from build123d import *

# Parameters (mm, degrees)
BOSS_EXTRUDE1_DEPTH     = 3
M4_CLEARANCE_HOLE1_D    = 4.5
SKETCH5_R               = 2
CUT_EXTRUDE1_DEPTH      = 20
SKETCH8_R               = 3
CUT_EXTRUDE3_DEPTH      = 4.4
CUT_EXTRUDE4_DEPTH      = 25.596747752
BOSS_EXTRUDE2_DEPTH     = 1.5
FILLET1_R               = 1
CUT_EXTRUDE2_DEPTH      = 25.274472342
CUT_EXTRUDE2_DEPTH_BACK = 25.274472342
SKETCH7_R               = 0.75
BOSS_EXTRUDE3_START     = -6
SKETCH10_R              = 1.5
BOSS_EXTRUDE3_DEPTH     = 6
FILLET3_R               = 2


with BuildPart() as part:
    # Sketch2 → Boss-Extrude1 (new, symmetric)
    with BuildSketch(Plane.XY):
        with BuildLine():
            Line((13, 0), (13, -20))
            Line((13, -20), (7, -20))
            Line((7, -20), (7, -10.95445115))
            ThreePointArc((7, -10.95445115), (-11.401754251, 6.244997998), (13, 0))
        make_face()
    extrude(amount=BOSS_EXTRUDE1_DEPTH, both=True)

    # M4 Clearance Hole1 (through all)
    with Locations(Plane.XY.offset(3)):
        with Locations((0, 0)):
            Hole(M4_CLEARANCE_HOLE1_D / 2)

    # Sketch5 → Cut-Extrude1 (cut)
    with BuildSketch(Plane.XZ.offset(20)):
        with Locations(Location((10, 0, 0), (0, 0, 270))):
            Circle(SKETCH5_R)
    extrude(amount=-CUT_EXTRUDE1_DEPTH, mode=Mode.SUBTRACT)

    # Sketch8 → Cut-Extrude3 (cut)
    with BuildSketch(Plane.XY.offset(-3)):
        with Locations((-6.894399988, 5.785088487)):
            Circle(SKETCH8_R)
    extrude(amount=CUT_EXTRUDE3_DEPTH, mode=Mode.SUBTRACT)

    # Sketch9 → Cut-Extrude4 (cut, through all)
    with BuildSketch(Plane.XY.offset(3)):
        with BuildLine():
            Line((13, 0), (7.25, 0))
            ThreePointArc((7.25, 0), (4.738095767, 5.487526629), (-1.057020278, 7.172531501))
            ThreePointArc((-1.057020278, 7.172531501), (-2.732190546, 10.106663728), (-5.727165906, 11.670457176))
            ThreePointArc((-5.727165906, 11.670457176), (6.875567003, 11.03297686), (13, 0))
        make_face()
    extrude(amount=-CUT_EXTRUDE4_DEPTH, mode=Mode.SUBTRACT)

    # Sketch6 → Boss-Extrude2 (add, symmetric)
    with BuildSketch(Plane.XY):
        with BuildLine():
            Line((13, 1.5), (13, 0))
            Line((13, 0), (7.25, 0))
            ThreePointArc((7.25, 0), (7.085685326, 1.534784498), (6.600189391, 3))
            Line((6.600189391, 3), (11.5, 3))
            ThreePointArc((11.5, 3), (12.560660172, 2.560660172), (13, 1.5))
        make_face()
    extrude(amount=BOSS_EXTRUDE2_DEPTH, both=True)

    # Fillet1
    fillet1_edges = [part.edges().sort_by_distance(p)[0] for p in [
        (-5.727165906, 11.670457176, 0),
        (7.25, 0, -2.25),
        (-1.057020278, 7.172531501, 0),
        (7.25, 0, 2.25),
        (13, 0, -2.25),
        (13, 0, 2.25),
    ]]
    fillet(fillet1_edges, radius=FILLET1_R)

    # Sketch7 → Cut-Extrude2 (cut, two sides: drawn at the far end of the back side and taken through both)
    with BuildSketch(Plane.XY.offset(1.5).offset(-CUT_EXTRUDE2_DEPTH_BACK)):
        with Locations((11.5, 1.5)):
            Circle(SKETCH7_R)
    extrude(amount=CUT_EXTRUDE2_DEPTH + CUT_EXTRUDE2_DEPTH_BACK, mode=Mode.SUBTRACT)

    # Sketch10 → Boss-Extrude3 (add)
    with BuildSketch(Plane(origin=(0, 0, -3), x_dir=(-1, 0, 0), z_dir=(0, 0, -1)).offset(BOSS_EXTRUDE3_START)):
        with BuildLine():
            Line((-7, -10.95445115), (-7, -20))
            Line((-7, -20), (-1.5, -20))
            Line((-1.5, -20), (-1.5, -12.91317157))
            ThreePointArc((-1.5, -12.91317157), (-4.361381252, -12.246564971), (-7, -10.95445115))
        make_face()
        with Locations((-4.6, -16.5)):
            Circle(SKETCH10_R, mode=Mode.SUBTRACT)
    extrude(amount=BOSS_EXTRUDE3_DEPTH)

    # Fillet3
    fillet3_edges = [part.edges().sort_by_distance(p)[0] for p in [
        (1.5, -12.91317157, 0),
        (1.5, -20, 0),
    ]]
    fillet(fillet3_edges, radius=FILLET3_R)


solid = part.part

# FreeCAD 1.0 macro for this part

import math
import FreeCAD as App
import Part
import Sketcher
Q = App.Units.Quantity


def edges_at(feature, points):
    """Names of the edges that pass closest to the given points."""
    edges = feature.Shape.Edges
    near = lambda p: min(range(len(edges)), key=lambda i: edges[i].distToShape(Part.Vertex(*p))[0])
    return sorted({f"Edge{near(p) + 1}" for p in points})

doc = App.newDocument("Part")
body = doc.addObject("PartDesign::Body", "Body")

# Sketch on XY plane
sketch1 = body.newObject("Sketcher::SketchObject", "Sketch")
sketch1.AttachmentSupport = (doc.getObject("XY_Plane"), [""])
sketch1.MapMode = "FlatFace"
sketch1.addGeometry([
    Part.LineSegment(App.Vector(13, -20, 0), App.Vector(13, 0, 0)),
    Part.ArcOfCircle(Part.Circle(App.Vector(0, 0, 0), App.Vector(0, 0, 1), 13), math.radians(0), math.radians(303)),
    Part.LineSegment(App.Vector(7, -11, 0), App.Vector(7, -20, 0)),
    Part.LineSegment(App.Vector(7, -20, 0), App.Vector(13, -20, 0)),
], False)
sketch1.addConstraint([
    Sketcher.Constraint("Tangent", 0, 2, 1, 1),
    Sketcher.Constraint("Coincident", 1, 2, 2, 1),
    Sketcher.Constraint("Coincident", 2, 2, 3, 1),
    Sketcher.Constraint("Coincident", 3, 2, 0, 1),
    Sketcher.Constraint("Vertical", 0),
    Sketcher.Constraint("Vertical", 2),
    Sketcher.Constraint("Horizontal", 3),
    Sketcher.Constraint("Coincident", 1, 3, -1, 1),
    Sketcher.Constraint("Radius", 1, Q("13 mm")),
    Sketcher.Constraint("DistanceX", 3, 1, 3, 2, Q("6 mm")),
    Sketcher.Constraint("DistanceY", 0, 1, 0, 2, Q("20 mm")),
])
pad1 = body.newObject("PartDesign::Pad", "Pad")
pad1.Profile = sketch1
pad1.Length = 6
pad1.Midplane = True

# Sketch on XY plane
sketch2 = body.newObject("Sketcher::SketchObject", "Sketch001")
sketch2.AttachmentSupport = (doc.getObject("XY_Plane"), [""])
sketch2.MapMode = "FlatFace"
sketch2.AttachmentOffset = App.Placement(App.Vector(0, 0, 3), App.Rotation())
sketch2.addGeometry(Part.Circle(App.Vector(0, 0, 0), App.Vector(0, 0, 1), 2.2), False)
sketch2.addConstraint([
    Sketcher.Constraint("Coincident", 0, 3, -1, 1),
    Sketcher.Constraint("Diameter", 0, Q("4.5 mm")),
])
doc.recompute()
hole = body.newObject("PartDesign::Hole", "Hole")
hole.Profile = sketch2
hole.ThreadType = "None"
hole.Diameter = 4.5
hole.DepthType = "ThroughAll"

# Sketch on XZ plane
sketch3 = body.newObject("Sketcher::SketchObject", "Sketch002")
sketch3.AttachmentSupport = (doc.getObject("XZ_Plane"), [""])
sketch3.MapMode = "FlatFace"
sketch3.AttachmentOffset = App.Placement(App.Vector(0, 0, 20), App.Rotation())
sketch3.addGeometry(Part.Circle(App.Vector(10, 0, 0), App.Vector(0, 0, 1), 2), False)
sketch3.addConstraint([
    Sketcher.Constraint("PointOnObject", 0, 3, -1),
    Sketcher.Constraint("Diameter", 0, Q("4 mm")),
    Sketcher.Constraint("DistanceX", -1, 1, 0, 3, Q("10 mm")),
])
pocket1 = body.newObject("PartDesign::Pocket", "Pocket")
pocket1.Profile = sketch3
pocket1.Length = 20

# Sketch on XY plane
sketch4 = body.newObject("Sketcher::SketchObject", "Sketch003")
sketch4.AttachmentSupport = (doc.getObject("XY_Plane"), [""])
sketch4.MapMode = "FlatFace"
sketch4.AttachmentOffset = App.Placement(App.Vector(0, 0, -3), App.Rotation())
sketch4.addGeometry(Part.Circle(App.Vector(-6.9, 5.8, 0), App.Vector(0, 0, 1), 3), False)
sketch4.addConstraint([
    Sketcher.Constraint("Diameter", 0, Q("6 mm")),
    Sketcher.Constraint("DistanceX", 0, 3, -1, 1, Q("6.8944 mm")),
    Sketcher.Constraint("DistanceY", -1, 1, 0, 3, Q("5.785088 mm")),
])
pocket2 = body.newObject("PartDesign::Pocket", "Pocket001")
pocket2.Profile = sketch4
pocket2.Length = 4.4
pocket2.Reversed = True

# Sketch on XY plane
sketch5 = body.newObject("Sketcher::SketchObject", "Sketch004")
sketch5.AttachmentSupport = (doc.getObject("XY_Plane"), [""])
sketch5.MapMode = "FlatFace"
sketch5.AttachmentOffset = App.Placement(App.Vector(0, 0, 3), App.Rotation())
sketch5.addGeometry([
    Part.LineSegment(App.Vector(7, 0, 0), App.Vector(13, 0, 0)),
    Part.ArcOfCircle(Part.Circle(App.Vector(0, 0, 0), App.Vector(0, 0, 1), 13), math.radians(0), math.radians(116)),
    Part.ArcOfCircle(Part.Circle(App.Vector(-7, 6, 0), App.Vector(0, 0, 1), 6), math.radians(13), math.radians(79)),
    Part.ArcOfCircle(Part.Circle(App.Vector(0, 0, 0), App.Vector(0, 0, 1), 7), math.radians(0), math.radians(98)),
], False)
sketch5.addConstraint([
    Sketcher.Constraint("Coincident", 0, 2, 1, 1),
    Sketcher.Constraint("Coincident", 1, 2, 2, 2),
    Sketcher.Constraint("Coincident", 2, 1, 3, 2),
    Sketcher.Constraint("Coincident", 3, 1, 0, 1),
    Sketcher.Constraint("Horizontal", 0),
    Sketcher.Constraint("Coincident", 1, 3, -1, 1),
    Sketcher.Constraint("Coincident", 3, 3, -1, 1),
    Sketcher.Constraint("PointOnObject", 0, 2, -1),
    Sketcher.Constraint("Radius", 1, Q("13 mm")),
    Sketcher.Constraint("Radius", 2, Q("6 mm")),
    Sketcher.Constraint("Radius", 3, Q("7.25 mm")),
    Sketcher.Constraint("DistanceX", 2, 3, -1, 1, Q("6.8944 mm")),
    Sketcher.Constraint("DistanceY", -1, 1, 2, 3, Q("5.785088 mm")),
])
pocket3 = body.newObject("PartDesign::Pocket", "Pocket002")
pocket3.Profile = sketch5
pocket3.Type = "ThroughAll"

# Sketch on XY plane
sketch6 = body.newObject("Sketcher::SketchObject", "Sketch005")
sketch6.AttachmentSupport = (doc.getObject("XY_Plane"), [""])
sketch6.MapMode = "FlatFace"
sketch6.addGeometry([
    Part.LineSegment(App.Vector(13, 0, 0), App.Vector(13, 1.5, 0)),  # 0
    Part.ArcOfCircle(Part.Circle(App.Vector(11.5, 1.5, 0), App.Vector(0, 0, 1), 1.5), math.radians(0), math.radians(90)),  # 1
    Part.LineSegment(App.Vector(11.5, 3, 0), App.Vector(6.6, 3, 0)),  # 2
    Part.ArcOfCircle(Part.Circle(App.Vector(0, 0, 0), App.Vector(0, 0, 1), 7.3), math.radians(0), math.radians(24)),  # 3
    Part.LineSegment(App.Vector(7.2, 0, 0), App.Vector(13, 0, 0)),  # 4
], False)
sketch6.addConstraint([
    Sketcher.Constraint("Tangent", 0, 2, 1, 1),
    Sketcher.Constraint("Tangent", 1, 2, 2, 1),
    Sketcher.Constraint("Coincident", 2, 2, 3, 2),
    Sketcher.Constraint("Coincident", 3, 1, 4, 1),
    Sketcher.Constraint("Coincident", 4, 2, 0, 1),
    Sketcher.Constraint("Vertical", 0),
    Sketcher.Constraint("Horizontal", 2),
    Sketcher.Constraint("Horizontal", 4),
    Sketcher.Constraint("Coincident", 3, 3, -1, 1),
    Sketcher.Constraint("PointOnObject", 3, 1, -1),
    Sketcher.Constraint("Radius", 1, Q("1.5 mm")),
    Sketcher.Constraint("Radius", 3, Q("7.25 mm")),
    Sketcher.Constraint("DistanceY", 0, 1, 0, 2, Q("1.5 mm")),
    Sketcher.Constraint("DistanceX", -1, 1, 0, 2, Q("13 mm")),
])
pad2 = body.newObject("PartDesign::Pad", "Pad001")
pad2.Profile = sketch6
pad2.Length = 3
pad2.Midplane = True
doc.recompute()

fillet = body.newObject("PartDesign::Fillet", "Fillet")
fillet.Base = (pad2, edges_at(pad2, [
    (-5.727, 11.67, 0),
    (7.25, 0, -2.25),
    (-1.057, 7.173, 0),
    (7.25, 0, 2.25),
    (13, 0, -2.25),
    (13, 0, 2.25),
]))
fillet.Radius = 1

# Sketch on XY plane
sketch7 = body.newObject("Sketcher::SketchObject", "Sketch006")
sketch7.AttachmentSupport = (doc.getObject("XY_Plane"), [""])
sketch7.MapMode = "FlatFace"
sketch7.AttachmentOffset = App.Placement(App.Vector(0, 0, 1.5), App.Rotation())
sketch7.addGeometry(Part.Circle(App.Vector(11.5, 1.5, 0), App.Vector(0, 0, 1), 0.8), False)
sketch7.addConstraint([
    Sketcher.Constraint("Diameter", 0, Q("1.5 mm")),
    Sketcher.Constraint("DistanceX", -1, 1, 0, 3, Q("11.5 mm")),
    Sketcher.Constraint("DistanceY", -1, 1, 0, 3, Q("1.5 mm")),
])
pocket4 = body.newObject("PartDesign::Pocket", "Pocket003")
pocket4.Profile = sketch7
pocket4.Type = "ThroughAll"
pocket4.Midplane = True

# Sketch on XY plane
sketch8 = body.newObject("Sketcher::SketchObject", "Sketch007")
sketch8.AttachmentSupport = (doc.getObject("XY_Plane"), [""])
sketch8.MapMode = "FlatFace"
sketch8.AttachmentOffset = App.Placement(App.Vector(0, 0, 3), App.Rotation())
sketch8.addGeometry([
    Part.LineSegment(App.Vector(7, -11, 0), App.Vector(7, -20, 0)),  # 0
    Part.LineSegment(App.Vector(7, -20, 0), App.Vector(1.5, -20, 0)),  # 1
    Part.LineSegment(App.Vector(1.5, -20, 0), App.Vector(1.5, -12.9, 0)),  # 2
    Part.ArcOfCircle(Part.Circle(App.Vector(0, 0, 0), App.Vector(0, 0, 1), 13), math.radians(-83), math.radians(-57)),  # 3
    Part.Circle(App.Vector(4.6, -16.5, 0), App.Vector(0, 0, 1), 1.5),  # 4
], False)
sketch8.addConstraint([
    Sketcher.Constraint("Coincident", 0, 2, 1, 1),
    Sketcher.Constraint("Coincident", 1, 2, 2, 1),
    Sketcher.Constraint("Coincident", 2, 2, 3, 1),
    Sketcher.Constraint("Coincident", 3, 2, 0, 1),
    Sketcher.Constraint("Vertical", 0),
    Sketcher.Constraint("Horizontal", 1),
    Sketcher.Constraint("Vertical", 2),
    Sketcher.Constraint("Coincident", 3, 3, -1, 1),
    Sketcher.Constraint("Diameter", 4, Q("3 mm")),
    Sketcher.Constraint("Radius", 3, Q("13 mm")),
    Sketcher.Constraint("DistanceX", 1, 2, 1, 1, Q("5.5 mm")),
    Sketcher.Constraint("DistanceX", -1, 1, 0, 2, Q("7 mm")),
    Sketcher.Constraint("DistanceY", 0, 2, -1, 1, Q("20 mm")),
    Sketcher.Constraint("DistanceX", -1, 1, 4, 3, Q("4.6 mm")),
    Sketcher.Constraint("DistanceY", 4, 3, -1, 1, Q("16.5 mm")),
])
pad3 = body.newObject("PartDesign::Pad", "Pad002")
pad3.Profile = sketch8
pad3.Length = 6
pad3.Reversed = True
doc.recompute()

fillet2 = body.newObject("PartDesign::Fillet", "Fillet001")
fillet2.Base = (pad3, edges_at(pad3, [(1.5, -12.913, 0), (1.5, -20, 0)]))
fillet2.Radius = 2

doc.recompute()
